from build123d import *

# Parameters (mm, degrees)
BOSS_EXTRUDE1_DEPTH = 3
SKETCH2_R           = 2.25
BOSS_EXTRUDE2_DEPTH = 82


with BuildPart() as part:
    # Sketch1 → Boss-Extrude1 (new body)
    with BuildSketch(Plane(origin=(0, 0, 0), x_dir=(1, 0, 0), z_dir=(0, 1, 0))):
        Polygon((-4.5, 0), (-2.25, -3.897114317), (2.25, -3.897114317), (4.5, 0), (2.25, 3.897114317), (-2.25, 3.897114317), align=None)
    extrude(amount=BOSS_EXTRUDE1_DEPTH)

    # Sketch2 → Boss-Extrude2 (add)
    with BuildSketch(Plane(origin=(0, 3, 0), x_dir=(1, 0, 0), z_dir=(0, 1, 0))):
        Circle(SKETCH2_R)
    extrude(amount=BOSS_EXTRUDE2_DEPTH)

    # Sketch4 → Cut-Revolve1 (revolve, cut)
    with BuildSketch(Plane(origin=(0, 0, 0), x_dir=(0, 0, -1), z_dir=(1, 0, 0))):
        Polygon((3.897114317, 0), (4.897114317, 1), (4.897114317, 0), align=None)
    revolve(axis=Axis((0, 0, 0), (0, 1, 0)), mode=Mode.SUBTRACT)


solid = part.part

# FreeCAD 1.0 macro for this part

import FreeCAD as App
import Part
import Sketcher
Q = App.Units.Quantity

doc = App.newDocument("Part")
params = doc.addObject("Spreadsheet::Sheet", "Params")
for row, (alias, value) in enumerate([
    ("sketch1_width", "4.5 mm"),
    ("pad1_length", "3 mm"),
    ("sketch2_diameter", "4.5 mm"),
    ("pad2_length", "82 mm"),
    ("sketch3_width", "1 mm"),
    ("groove_angle", "360 deg"),
], start=1):
    params.set(f"A{row}", alias)
    params.set(f"B{row}", "=" + value)
    params.setAlias(f"B{row}", alias)

body = doc.addObject("PartDesign::Body", "Body")

# Sketch on XZ plane
sketch1 = body.newObject("Sketcher::SketchObject", "Sketch")
sketch1.AttachmentSupport = (doc.getObject("XZ_Plane"), [""])
sketch1.MapMode = "FlatFace"
sketch1.addGeometry([
    Part.LineSegment(App.Vector(-4.5, 0, 0), App.Vector(-2.2, 3.9, 0)),  # 0
    Part.LineSegment(App.Vector(-2.2, 3.9, 0), App.Vector(2.2, 3.9, 0)),  # 1
    Part.LineSegment(App.Vector(2.2, 3.9, 0), App.Vector(4.5, 0, 0)),  # 2
    Part.LineSegment(App.Vector(4.5, 0, 0), App.Vector(2.2, -3.9, 0)),  # 3
    Part.LineSegment(App.Vector(2.2, -3.9, 0), App.Vector(-2.2, -3.9, 0)),  # 4
    Part.LineSegment(App.Vector(-2.2, -3.9, 0), App.Vector(-4.5, 0, 0)),  # 5
], False)
sketch1.addConstraint([
    Sketcher.Constraint("Coincident", 0, 2, 1, 1),
    Sketcher.Constraint("Coincident", 1, 2, 2, 1),
    Sketcher.Constraint("Coincident", 2, 2, 3, 1),
    Sketcher.Constraint("Coincident", 3, 2, 4, 1),
    Sketcher.Constraint("Coincident", 4, 2, 5, 1),
    Sketcher.Constraint("Coincident", 5, 2, 0, 1),
    Sketcher.Constraint("Horizontal", 1),
    Sketcher.Constraint("Horizontal", 4),
    Sketcher.Constraint("Symmetric", 0, 2, 3, 2, -1, 1),
    Sketcher.Constraint("Symmetric", 2, 2, 5, 2, -1, 1),
    Sketcher.Constraint("PointOnObject", 2, 2, -1),
    Sketcher.Constraint("Parallel", 2, 5),
    Sketcher.Constraint("Vertical", 1, 2, 3, 2),
    Sketcher.Constraint("Angle", 0, Q("60 deg")),
    Sketcher.Constraint("DistanceX", 1, 1, 1, 2, 4.5),
    Sketcher.Constraint("DistanceX", 5, 2, 2, 2, 9.0),
])
sketch1.setExpression("Constraints[14]", "Params.sketch1_width")
pad1 = body.newObject("PartDesign::Pad", "Pad")
pad1.Profile = sketch1
pad1.setExpression("Length", "Params.pad1_length")
pad1.Reversed = True

# Sketch on XZ plane
sketch2 = body.newObject("Sketcher::SketchObject", "Sketch001")
sketch2.AttachmentSupport = (doc.getObject("XZ_Plane"), [""])
sketch2.MapMode = "FlatFace"
sketch2.AttachmentOffset = App.Placement(App.Vector(0, 0, -3), App.Rotation())
sketch2.addGeometry(Part.Circle(App.Vector(0, 0, 0), App.Vector(0, 0, 1), 2.2), False)
sketch2.addConstraint([
    Sketcher.Constraint("Coincident", 0, 3, -1, 1),
    Sketcher.Constraint("Diameter", 0, 4.5),
])
sketch2.setExpression("Constraints[1]", "Params.sketch2_diameter")
pad2 = body.newObject("PartDesign::Pad", "Pad001")
pad2.Profile = sketch2
pad2.setExpression("Length", "Params.pad2_length")
pad2.Reversed = True

# Sketch on YZ plane
sketch3 = body.newObject("Sketcher::SketchObject", "Sketch002")
sketch3.AttachmentSupport = (doc.getObject("YZ_Plane"), [""])
sketch3.MapMode = "FlatFace"
sketch3.addGeometry([
    Part.LineSegment(App.Vector(1, -4.9, 0), App.Vector(0, -3.9, 0)),
    Part.LineSegment(App.Vector(0, -3.9, 0), App.Vector(0, -4.9, 0)),
    Part.LineSegment(App.Vector(0, -4.9, 0), App.Vector(1, -4.9, 0)),
], False)
sketch3.addConstraint([
    Sketcher.Constraint("Coincident", 0, 2, 1, 1),
    Sketcher.Constraint("Coincident", 1, 2, 2, 1),
    Sketcher.Constraint("Coincident", 2, 2, 0, 1),
    Sketcher.Constraint("Vertical", 1),
    Sketcher.Constraint("Horizontal", 2),
    Sketcher.Constraint("PointOnObject", 0, 2, -2),
    Sketcher.Constraint("Equal", 2, 1),
    Sketcher.Constraint("DistanceX", 2, 1, 2, 2, 1.0),
    Sketcher.Constraint("DistanceY", 0, 2, -1, 1, 3.897114),
])
sketch3.setExpression("Constraints[7]", "Params.sketch3_width")
groove = body.newObject("PartDesign::Groove", "Groove")
groove.Profile = sketch3
groove.ReferenceAxis = (sketch3, ["H_Axis"])
groove.setExpression("Angle", "Params.groove_angle")

doc.recompute()
